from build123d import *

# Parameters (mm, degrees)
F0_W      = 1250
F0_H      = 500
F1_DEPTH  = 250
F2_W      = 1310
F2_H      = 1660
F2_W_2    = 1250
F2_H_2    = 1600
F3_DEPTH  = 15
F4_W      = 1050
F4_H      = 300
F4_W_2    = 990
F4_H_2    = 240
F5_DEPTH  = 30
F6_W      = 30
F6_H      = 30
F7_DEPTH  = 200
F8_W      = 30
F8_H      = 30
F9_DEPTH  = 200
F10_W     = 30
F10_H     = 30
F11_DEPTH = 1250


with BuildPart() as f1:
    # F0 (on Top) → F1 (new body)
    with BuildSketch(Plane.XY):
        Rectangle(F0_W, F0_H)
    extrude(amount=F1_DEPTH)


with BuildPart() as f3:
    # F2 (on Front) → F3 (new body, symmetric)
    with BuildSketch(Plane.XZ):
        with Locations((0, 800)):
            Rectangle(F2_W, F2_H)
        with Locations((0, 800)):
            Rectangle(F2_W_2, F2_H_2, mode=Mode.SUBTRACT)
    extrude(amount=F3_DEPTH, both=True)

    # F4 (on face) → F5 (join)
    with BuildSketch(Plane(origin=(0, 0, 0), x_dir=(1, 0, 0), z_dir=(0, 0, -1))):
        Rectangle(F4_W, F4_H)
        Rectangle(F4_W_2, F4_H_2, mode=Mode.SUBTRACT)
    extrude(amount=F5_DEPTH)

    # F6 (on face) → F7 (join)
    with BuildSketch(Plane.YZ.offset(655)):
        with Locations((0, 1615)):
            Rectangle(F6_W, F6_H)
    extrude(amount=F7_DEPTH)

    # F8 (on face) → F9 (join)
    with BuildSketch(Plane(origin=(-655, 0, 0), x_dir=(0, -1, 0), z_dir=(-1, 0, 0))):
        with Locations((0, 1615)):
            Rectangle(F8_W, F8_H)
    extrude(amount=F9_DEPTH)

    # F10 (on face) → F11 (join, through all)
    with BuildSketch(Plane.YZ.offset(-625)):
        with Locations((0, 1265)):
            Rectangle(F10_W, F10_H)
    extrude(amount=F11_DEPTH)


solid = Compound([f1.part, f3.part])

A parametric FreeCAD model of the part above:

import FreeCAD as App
import Part
import Sketcher
from FreeCAD import Vector


def add_polygon(sketch, points):
    """Adds a closed chain of lines whose ends are joined by coincident constraints."""
    first, n = sketch.GeometryCount, len(points)
    for a, b in zip(points, points[1:] + points[:1]):
        sketch.addGeometry(Part.LineSegment(App.Vector(*a, 0), App.Vector(*b, 0)), False)
    for i in range(n):
        sketch.addConstraint(Sketcher.Constraint("Coincident", first + i, 2, first + (i + 1) % n, 1))

doc = App.newDocument("Part")
body = doc.addObject("PartDesign::Body", "Body")

# Sketch on XY plane
sketch1 = body.newObject("Sketcher::SketchObject", "Sketch")
sketch1.AttachmentSupport = (doc.getObject("XY_Plane"), [""])
sketch1.MapMode = "FlatFace"
add_polygon(sketch1, [(-625, 250), (-625, -250), (625, -250), (625, 250)])  # lines 0-3
sketch1.addConstraint([
    Sketcher.Constraint("Vertical", 0),
    Sketcher.Constraint("Horizontal", 1),
    Sketcher.Constraint("Vertical", 2),
    Sketcher.Constraint("Horizontal", 3),
    Sketcher.Constraint("Symmetric", 0, 2, 2, 2, -1, 1),
    Sketcher.Constraint("DistanceX", 1, 1, 1, 2, 1250.0),
    Sketcher.Constraint("DistanceY", 0, 2, 0, 1, 500.0),
])
pad1 = body.newObject("PartDesign::Pad", "Pad")
pad1.Profile = sketch1
pad1.Length = 250
body2 = doc.addObject("PartDesign::Body", "Body001")

# Sketch on XZ plane
sketch2 = body2.newObject("Sketcher::SketchObject", "Sketch001")
sketch2.AttachmentSupport = (doc.getObject("XZ_Plane001"), [""])
sketch2.MapMode = "FlatFace"
add_polygon(sketch2, [(-655, 1630), (-655, -30), (655, -30), (655, 1630)])  # lines 0-3
add_polygon(sketch2, [(625, 0), (-625, 0), (-625, 1600), (625, 1600)])  # lines 4-7
sketch2.addConstraint([
    Sketcher.Constraint("Vertical", 0),
    Sketcher.Constraint("Horizontal", 1),
    Sketcher.Constraint("Vertical", 2),
    Sketcher.Constraint("Horizontal", 3),
    Sketcher.Constraint("Horizontal", 4),
    Sketcher.Constraint("Vertical", 5),
    Sketcher.Constraint("Horizontal", 6),
    Sketcher.Constraint("Vertical", 7),
    Sketcher.Constraint("Symmetric", 4, 2, 7, 2, -1, 1),
    Sketcher.Constraint("DistanceX", 1, 1, 1, 2, 1310.0),
    Sketcher.Constraint("DistanceX", 4, 2, 4, 1, 1250.0),
    Sketcher.Constraint("DistanceY", 0, 2, 0, 1, 1660.0),
    Sketcher.Constraint("DistanceY", 5, 1, 5, 2, 1600.0),
    Sketcher.Constraint("DistanceX", 0, 2, -1, 1, 655.0),
    Sketcher.Constraint("DistanceY", 0, 2, -1, 1, 30.0),
])
pad2 = body2.newObject("PartDesign::Pad", "Pad001")
pad2.Profile = sketch2
pad2.Length = 30
pad2.Midplane = True

# Sketch on XY plane
sketch3 = body2.newObject("Sketcher::SketchObject", "Sketch002")
sketch3.AttachmentSupport = (doc.getObject("XY_Plane001"), [""])
sketch3.MapMode = "FlatFace"
add_polygon(sketch3, [(-525, -150), (-525, 150), (525, 150), (525, -150)])  # lines 0-3
add_polygon(sketch3, [(495, 120), (-495, 120), (-495, -120), (495, -120)])  # lines 4-7
sketch3.addConstraint([
    Sketcher.Constraint("Vertical", 0),
    Sketcher.Constraint("Horizontal", 1),
    Sketcher.Constraint("Vertical", 2),
    Sketcher.Constraint("Horizontal", 3),
    Sketcher.Constraint("Horizontal", 4),
    Sketcher.Constraint("Vertical", 5),
    Sketcher.Constraint("Horizontal", 6),
    Sketcher.Constraint("Vertical", 7),
    Sketcher.Constraint("Symmetric", 0, 2, 2, 2, -1, 1),
    Sketcher.Constraint("Symmetric", 4, 2, 6, 2, -1, 1),
    Sketcher.Constraint("DistanceX", 1, 1, 1, 2, 1050.0),
    Sketcher.Constraint("DistanceX", 4, 2, 4, 1, 990.0),
    Sketcher.Constraint("DistanceY", 0, 1, 0, 2, 300.0),
    Sketcher.Constraint("DistanceY", 5, 2, 5, 1, 240.0),
])
pad3 = body2.newObject("PartDesign::Pad", "Pad002")
pad3.Profile = sketch3
pad3.Length = 30
pad3.Reversed = True

# Sketch on YZ plane
sketch4 = body2.newObject("Sketcher::SketchObject", "Sketch003")
sketch4.AttachmentSupport = (doc.getObject("YZ_Plane001"), [""])
sketch4.MapMode = "FlatFace"
sketch4.AttachmentOffset = App.Placement(Vector(0, 0, 655), App.Rotation())
add_polygon(sketch4, [(-15, 1630), (-15, 1600), (15, 1600), (15, 1630)])  # lines 0-3
sketch4.addConstraint([
    Sketcher.Constraint("Vertical", 0),
    Sketcher.Constraint("Horizontal", 1),
    Sketcher.Constraint("Vertical", 2),
    Sketcher.Constraint("Horizontal", 3),
    Sketcher.Constraint("Equal", 3, 0),
    Sketcher.Constraint("DistanceX", 1, 1, 1, 2, 30.0),
    Sketcher.Constraint("DistanceX", 0, 2, -1, 1, 15.0),
    Sketcher.Constraint("DistanceY", -1, 1, 0, 2, 1600.0),
])
pad4 = body2.newObject("PartDesign::Pad", "Pad003")
pad4.Profile = sketch4
pad4.Length = 200

# Sketch on YZ plane
sketch5 = body2.newObject("Sketcher::SketchObject", "Sketch004")
sketch5.AttachmentSupport = (doc.getObject("YZ_Plane001"), [""])
sketch5.MapMode = "FlatFace"
sketch5.AttachmentOffset = App.Placement(Vector(0, 0, -655), App.Rotation())
add_polygon(sketch5, [(15, 1630), (15, 1600), (-15, 1600), (-15, 1630)])  # lines 0-3
sketch5.addConstraint([
    Sketcher.Constraint("Vertical", 0),
    Sketcher.Constraint("Horizontal", 1),
    Sketcher.Constraint("Vertical", 2),
    Sketcher.Constraint("Horizontal", 3),
    Sketcher.Constraint("Equal", 3, 0),
    Sketcher.Constraint("DistanceX", 1, 2, 1, 1, 30.0),
    Sketcher.Constraint("DistanceX", -1, 1, 0, 2, 15.0),
    Sketcher.Constraint("DistanceY", -1, 1, 0, 2, 1600.0),
])
pad5 = body2.newObject("PartDesign::Pad", "Pad004")
pad5.Profile = sketch5
pad5.Length = 200
pad5.Reversed = True

# Sketch on YZ plane
sketch6 = body2.newObject("Sketcher::SketchObject", "Sketch005")
sketch6.AttachmentSupport = (doc.getObject("YZ_Plane001"), [""])
sketch6.MapMode = "FlatFace"
sketch6.AttachmentOffset = App.Placement(Vector(0, 0, -625), App.Rotation())
add_polygon(sketch6, [(-15, 1280), (-15, 1250), (15, 1250), (15, 1280)])  # lines 0-3
sketch6.addConstraint([
    Sketcher.Constraint("Vertical", 0),
    Sketcher.Constraint("Horizontal", 1),
    Sketcher.Constraint("Vertical", 2),
    Sketcher.Constraint("Horizontal", 3),
    Sketcher.Constraint("Equal", 3, 0),
    Sketcher.Constraint("DistanceX", 1, 1, 1, 2, 30.0),
    Sketcher.Constraint("DistanceX", 0, 2, -1, 1, 15.0),
    Sketcher.Constraint("DistanceY", -1, 1, 0, 2, 1250.0),
])
pad6 = body2.newObject("PartDesign::Pad", "Pad005")
pad6.Profile = sketch6
pad6.Type = "UpToLast"

doc.recompute()
